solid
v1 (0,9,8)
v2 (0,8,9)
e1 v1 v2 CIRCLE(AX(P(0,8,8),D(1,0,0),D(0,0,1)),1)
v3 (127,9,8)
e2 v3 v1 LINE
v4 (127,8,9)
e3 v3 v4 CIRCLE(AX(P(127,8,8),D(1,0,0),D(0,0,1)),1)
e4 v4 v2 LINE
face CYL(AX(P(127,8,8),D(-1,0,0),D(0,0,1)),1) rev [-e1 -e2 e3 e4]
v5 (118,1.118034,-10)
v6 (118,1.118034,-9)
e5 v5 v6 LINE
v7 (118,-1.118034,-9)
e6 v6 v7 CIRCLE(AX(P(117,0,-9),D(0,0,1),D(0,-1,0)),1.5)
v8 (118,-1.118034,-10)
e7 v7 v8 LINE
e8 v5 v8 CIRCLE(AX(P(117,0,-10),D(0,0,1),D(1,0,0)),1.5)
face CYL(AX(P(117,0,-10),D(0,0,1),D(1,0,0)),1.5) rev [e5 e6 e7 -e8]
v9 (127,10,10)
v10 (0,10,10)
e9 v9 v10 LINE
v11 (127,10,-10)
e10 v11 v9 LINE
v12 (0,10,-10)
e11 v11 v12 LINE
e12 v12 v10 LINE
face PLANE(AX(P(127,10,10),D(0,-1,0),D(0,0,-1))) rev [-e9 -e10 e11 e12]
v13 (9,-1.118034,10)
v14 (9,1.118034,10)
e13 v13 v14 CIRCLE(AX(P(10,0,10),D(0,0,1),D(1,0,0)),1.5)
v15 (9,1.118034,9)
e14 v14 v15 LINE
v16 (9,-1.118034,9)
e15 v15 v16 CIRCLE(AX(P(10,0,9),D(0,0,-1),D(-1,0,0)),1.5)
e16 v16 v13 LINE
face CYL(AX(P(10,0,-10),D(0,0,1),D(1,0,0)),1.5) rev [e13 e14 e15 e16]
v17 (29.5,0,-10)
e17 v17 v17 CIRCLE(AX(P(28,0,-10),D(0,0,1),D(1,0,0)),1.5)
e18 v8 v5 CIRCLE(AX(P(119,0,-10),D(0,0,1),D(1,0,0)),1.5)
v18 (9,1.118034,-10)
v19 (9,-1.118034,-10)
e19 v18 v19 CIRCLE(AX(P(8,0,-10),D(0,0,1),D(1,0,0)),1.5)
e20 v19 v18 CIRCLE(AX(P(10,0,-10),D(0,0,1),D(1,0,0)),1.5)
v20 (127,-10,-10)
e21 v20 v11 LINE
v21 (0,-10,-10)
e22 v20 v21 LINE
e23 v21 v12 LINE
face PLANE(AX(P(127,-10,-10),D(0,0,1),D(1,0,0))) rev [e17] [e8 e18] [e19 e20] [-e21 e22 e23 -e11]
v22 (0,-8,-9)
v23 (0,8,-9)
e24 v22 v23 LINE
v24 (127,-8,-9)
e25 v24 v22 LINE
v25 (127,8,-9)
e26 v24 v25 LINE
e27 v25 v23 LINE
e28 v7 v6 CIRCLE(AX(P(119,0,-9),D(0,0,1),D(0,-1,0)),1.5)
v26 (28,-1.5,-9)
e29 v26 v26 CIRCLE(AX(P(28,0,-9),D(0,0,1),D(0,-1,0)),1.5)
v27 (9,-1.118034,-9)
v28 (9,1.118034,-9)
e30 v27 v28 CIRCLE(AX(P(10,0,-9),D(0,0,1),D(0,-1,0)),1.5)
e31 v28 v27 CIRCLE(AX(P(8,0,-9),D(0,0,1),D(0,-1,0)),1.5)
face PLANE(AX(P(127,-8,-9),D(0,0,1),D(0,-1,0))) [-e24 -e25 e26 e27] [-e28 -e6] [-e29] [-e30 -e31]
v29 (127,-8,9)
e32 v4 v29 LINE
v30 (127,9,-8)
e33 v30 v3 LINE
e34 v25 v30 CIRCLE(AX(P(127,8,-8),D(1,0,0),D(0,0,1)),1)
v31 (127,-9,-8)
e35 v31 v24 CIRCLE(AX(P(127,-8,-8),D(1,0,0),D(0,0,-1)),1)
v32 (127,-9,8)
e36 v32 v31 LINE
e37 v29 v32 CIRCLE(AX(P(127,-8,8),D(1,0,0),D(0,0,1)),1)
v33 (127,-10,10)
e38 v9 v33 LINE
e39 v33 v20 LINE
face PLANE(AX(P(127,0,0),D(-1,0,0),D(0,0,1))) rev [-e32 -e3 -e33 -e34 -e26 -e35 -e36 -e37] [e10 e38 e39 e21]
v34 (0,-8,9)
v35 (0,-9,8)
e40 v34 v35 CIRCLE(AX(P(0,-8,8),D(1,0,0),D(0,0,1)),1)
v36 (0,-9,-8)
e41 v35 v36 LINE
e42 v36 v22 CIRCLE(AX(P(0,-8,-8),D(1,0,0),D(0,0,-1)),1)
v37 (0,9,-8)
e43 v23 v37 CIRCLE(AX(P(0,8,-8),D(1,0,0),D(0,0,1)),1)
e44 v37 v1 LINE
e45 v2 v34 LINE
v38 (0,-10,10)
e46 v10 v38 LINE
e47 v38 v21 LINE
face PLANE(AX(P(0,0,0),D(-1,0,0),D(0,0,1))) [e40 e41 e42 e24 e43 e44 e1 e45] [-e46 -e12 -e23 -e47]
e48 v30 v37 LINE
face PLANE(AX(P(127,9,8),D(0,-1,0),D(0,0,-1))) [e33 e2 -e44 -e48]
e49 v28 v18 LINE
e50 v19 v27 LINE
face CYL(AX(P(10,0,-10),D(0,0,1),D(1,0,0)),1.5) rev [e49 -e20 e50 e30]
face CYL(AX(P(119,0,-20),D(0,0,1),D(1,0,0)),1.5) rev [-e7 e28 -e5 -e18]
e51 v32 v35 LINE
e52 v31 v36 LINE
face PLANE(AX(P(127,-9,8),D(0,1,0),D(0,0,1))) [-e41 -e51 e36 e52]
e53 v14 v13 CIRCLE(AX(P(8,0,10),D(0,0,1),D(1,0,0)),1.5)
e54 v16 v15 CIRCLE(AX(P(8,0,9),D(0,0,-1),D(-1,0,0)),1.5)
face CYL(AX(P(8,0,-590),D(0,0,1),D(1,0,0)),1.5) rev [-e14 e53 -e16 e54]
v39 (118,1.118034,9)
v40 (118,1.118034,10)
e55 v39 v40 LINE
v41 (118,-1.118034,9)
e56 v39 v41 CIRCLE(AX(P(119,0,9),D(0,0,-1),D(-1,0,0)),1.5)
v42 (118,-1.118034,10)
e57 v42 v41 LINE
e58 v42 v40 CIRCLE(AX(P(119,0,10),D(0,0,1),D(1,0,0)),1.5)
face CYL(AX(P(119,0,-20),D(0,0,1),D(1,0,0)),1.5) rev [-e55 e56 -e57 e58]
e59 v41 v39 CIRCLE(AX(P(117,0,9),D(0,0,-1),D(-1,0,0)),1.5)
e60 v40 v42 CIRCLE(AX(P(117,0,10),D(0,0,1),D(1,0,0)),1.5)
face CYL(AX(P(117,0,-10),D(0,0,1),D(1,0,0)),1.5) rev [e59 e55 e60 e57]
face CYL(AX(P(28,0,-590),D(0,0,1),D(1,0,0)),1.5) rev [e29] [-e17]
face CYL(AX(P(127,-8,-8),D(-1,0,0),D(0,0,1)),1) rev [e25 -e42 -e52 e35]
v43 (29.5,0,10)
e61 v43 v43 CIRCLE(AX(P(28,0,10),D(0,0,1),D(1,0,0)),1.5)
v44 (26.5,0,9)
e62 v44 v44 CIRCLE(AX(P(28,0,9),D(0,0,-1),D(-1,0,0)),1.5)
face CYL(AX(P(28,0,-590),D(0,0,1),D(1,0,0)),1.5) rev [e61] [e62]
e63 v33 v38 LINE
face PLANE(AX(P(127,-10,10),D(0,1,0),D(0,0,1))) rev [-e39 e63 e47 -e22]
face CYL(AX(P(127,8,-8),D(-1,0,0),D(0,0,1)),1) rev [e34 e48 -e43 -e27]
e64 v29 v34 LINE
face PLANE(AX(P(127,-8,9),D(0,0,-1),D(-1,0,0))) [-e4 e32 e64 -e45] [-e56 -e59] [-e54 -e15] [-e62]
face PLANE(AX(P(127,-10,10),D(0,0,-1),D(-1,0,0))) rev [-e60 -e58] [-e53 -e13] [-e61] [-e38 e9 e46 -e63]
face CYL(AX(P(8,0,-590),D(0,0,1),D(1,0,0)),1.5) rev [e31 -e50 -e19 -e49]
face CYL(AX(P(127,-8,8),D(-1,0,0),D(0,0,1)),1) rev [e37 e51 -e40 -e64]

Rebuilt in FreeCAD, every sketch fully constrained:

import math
import FreeCAD as App
import Part
import Sketcher


def add_polygon(sketch, points):
    """Adds a closed chain of lines whose ends are joined by coincident constraints."""
    first, n = sketch.GeometryCount, len(points)
    for a, b in zip(points, points[1:] + points[:1]):
        sketch.addGeometry(Part.LineSegment(App.Vector(*a, 0), App.Vector(*b, 0)), False)
    for i in range(n):
        sketch.addConstraint(Sketcher.Constraint("Coincident", first + i, 2, first + (i + 1) % n, 1))

doc = App.newDocument("Part")
body = doc.addObject("PartDesign::Body", "Body")

# Sketch on YZ plane
sketch1 = doc.addObject("Sketcher::SketchObject", "Sketch")
body.addObject(sketch1)
sketch1.AttachmentSupport = (doc.YZ_Plane, [""])
sketch1.MapMode = "FlatFace"
add_polygon(sketch1, [(10, 10), (-10, 10), (-10, -10), (10, -10)])  # lines 0-3
sketch1.addGeometry(Part.LineSegment(App.Vector(-9, -8, 0), App.Vector(-9, 8, 0)), False)  # 4
sketch1.addGeometry(Part.ArcOfCircle(Part.Circle(App.Vector(-8, 8, 0), App.Vector(0, 0, 1), 1), math.radians(90), math.radians(180)), False)  # 5
sketch1.addGeometry(Part.LineSegment(App.Vector(-8, 9, 0), App.Vector(8, 9, 0)), False)  # 6
sketch1.addGeometry(Part.ArcOfCircle(Part.Circle(App.Vector(8, 8, 0), App.Vector(0, 0, 1), 1), math.radians(0), math.radians(90)), False)  # 7
sketch1.addGeometry(Part.LineSegment(App.Vector(9, 8, 0), App.Vector(9, -8, 0)), False)  # 8
sketch1.addGeometry(Part.ArcOfCircle(Part.Circle(App.Vector(8, -8, 0), App.Vector(0, 0, 1), 1), math.radians(-90), math.radians(0)), False)  # 9
sketch1.addGeometry(Part.LineSegment(App.Vector(8, -9, 0), App.Vector(-8, -9, 0)), False)  # 10
sketch1.addGeometry(Part.ArcOfCircle(Part.Circle(App.Vector(-8, -8, 0), App.Vector(0, 0, 1), 1), math.radians(-180), math.radians(-90)), False)  # 11
sketch1.addConstraint([
    Sketcher.Constraint("Tangent", 4, 2, 5, 2),
    Sketcher.Constraint("Tangent", 5, 1, 6, 1),
    Sketcher.Constraint("Tangent", 6, 2, 7, 2),
    Sketcher.Constraint("Tangent", 7, 1, 8, 1),
    Sketcher.Constraint("Tangent", 8, 2, 9, 2),
    Sketcher.Constraint("Tangent", 9, 1, 10, 1),
    Sketcher.Constraint("Tangent", 10, 2, 11, 2),
    Sketcher.Constraint("Tangent", 11, 1, 4, 1),
    Sketcher.Constraint("Horizontal", 0),
    Sketcher.Constraint("Vertical", 1),
    Sketcher.Constraint("Horizontal", 2),
    Sketcher.Constraint("Vertical", 3),
    Sketcher.Constraint("Vertical", 4),
    Sketcher.Constraint("Horizontal", 6),
    Sketcher.Constraint("Vertical", 8),
    Sketcher.Constraint("Horizontal", 10),
    Sketcher.Constraint("Equal", 5, 7),
    Sketcher.Constraint("Equal", 7, 9),
    Sketcher.Constraint("Equal", 9, 11),
    Sketcher.Constraint("Symmetric", 5, 3, 9, 3, -1, 1),
    Sketcher.Constraint("Symmetric", 0, 2, 2, 2, -1, 1),
    Sketcher.Constraint("Equal", 2, 1),
    Sketcher.Constraint("Equal", 10, 4),
    Sketcher.Constraint("Radius", 5, 1.0),
    Sketcher.Constraint("DistanceX", 0, 2, 0, 1, 20.0),
    Sketcher.Constraint("DistanceX", 6, 1, 6, 2, 16.0),
])
pad1 = doc.addObject("PartDesign::Pad", "Pad")
body.addObject(pad1)
pad1.Profile = sketch1
pad1.Length = 127

# Sketch on XY plane
sketch2 = doc.addObject("Sketcher::SketchObject", "Sketch001")
body.addObject(sketch2)
sketch2.AttachmentSupport = (doc.XY_Plane, [""])
sketch2.MapMode = "FlatFace"
sketch2.AttachmentOffset = App.Placement(App.Vector(0, 0, 10), App.Rotation())
sketch2.addGeometry([
    Part.Circle(App.Vector(10, 0, 0), App.Vector(0, 0, 1), 1.5),
    Part.Circle(App.Vector(117, 0, 0), App.Vector(0, 0, 1), 1.5),
], False)
sketch2.addConstraint([
    Sketcher.Constraint("Equal", 0, 1),
    Sketcher.Constraint("PointOnObject", 0, 3, -1),
    Sketcher.Constraint("PointOnObject", 1, 3, -1),
    Sketcher.Constraint("Diameter", 0, 3.0),
    Sketcher.Constraint("DistanceX", -1, 1, 0, 3, 10.0),
    Sketcher.Constraint("DistanceX", -1, 1, 1, 3, 117.0),
])
pocket1 = doc.addObject("PartDesign::Pocket", "Pocket")
body.addObject(pocket1)
pocket1.Profile = sketch2
pocket1.Length = 20

# Sketch on XY plane
sketch3 = doc.addObject("Sketcher::SketchObject", "Sketch002")
body.addObject(sketch3)
sketch3.AttachmentSupport = (doc.XY_Plane, [""])
sketch3.MapMode = "FlatFace"
sketch3.AttachmentOffset = App.Placement(App.Vector(0, 0, 10), App.Rotation())
sketch3.addGeometry([
    Part.Circle(App.Vector(8, 0, 0), App.Vector(0, 0, 1), 1.5),
    Part.Circle(App.Vector(28, 0, 0), App.Vector(0, 0, 1), 1.5),
], False)
sketch3.addConstraint([
    Sketcher.Constraint("Equal", 0, 1),
    Sketcher.Constraint("PointOnObject", 0, 3, -1),
    Sketcher.Constraint("PointOnObject", 1, 3, -1),
    Sketcher.Constraint("Diameter", 0, 3.0),
    Sketcher.Constraint("DistanceX", -1, 1, 0, 3, 8.0),
    Sketcher.Constraint("DistanceX", -1, 1, 1, 3, 28.0),
])
pocket2 = doc.addObject("PartDesign::Pocket", "Pocket001")
body.addObject(pocket2)
pocket2.Profile = sketch3
pocket2.Length = 600

# Sketch on XY plane
sketch4 = doc.addObject("Sketcher::SketchObject", "Sketch003")
body.addObject(sketch4)
sketch4.AttachmentSupport = (doc.XY_Plane, [""])
sketch4.MapMode = "FlatFace"
sketch4.AttachmentOffset = App.Placement(App.Vector(0, 0, 10), App.Rotation())
sketch4.addGeometry([
    Part.Circle(App.Vector(119, 0, 0), App.Vector(0, 0, 1), 1.5),
    Part.Circle(App.Vector(139, 0, 0), App.Vector(0, 0, 1), 1.5),
], False)
sketch4.addConstraint([
    Sketcher.Constraint("Equal", 0, 1),
    Sketcher.Constraint("PointOnObject", 0, 3, -1),
    Sketcher.Constraint("PointOnObject", 1, 3, -1),
    Sketcher.Constraint("Diameter", 0, 3.0),
    Sketcher.Constraint("DistanceX", -1, 1, 0, 3, 119.0),
    Sketcher.Constraint("DistanceX", -1, 1, 1, 3, 139.0),
])
pocket3 = doc.addObject("PartDesign::Pocket", "Pocket002")
body.addObject(pocket3)
pocket3.Profile = sketch4
pocket3.Length = 30

doc.recompute()
